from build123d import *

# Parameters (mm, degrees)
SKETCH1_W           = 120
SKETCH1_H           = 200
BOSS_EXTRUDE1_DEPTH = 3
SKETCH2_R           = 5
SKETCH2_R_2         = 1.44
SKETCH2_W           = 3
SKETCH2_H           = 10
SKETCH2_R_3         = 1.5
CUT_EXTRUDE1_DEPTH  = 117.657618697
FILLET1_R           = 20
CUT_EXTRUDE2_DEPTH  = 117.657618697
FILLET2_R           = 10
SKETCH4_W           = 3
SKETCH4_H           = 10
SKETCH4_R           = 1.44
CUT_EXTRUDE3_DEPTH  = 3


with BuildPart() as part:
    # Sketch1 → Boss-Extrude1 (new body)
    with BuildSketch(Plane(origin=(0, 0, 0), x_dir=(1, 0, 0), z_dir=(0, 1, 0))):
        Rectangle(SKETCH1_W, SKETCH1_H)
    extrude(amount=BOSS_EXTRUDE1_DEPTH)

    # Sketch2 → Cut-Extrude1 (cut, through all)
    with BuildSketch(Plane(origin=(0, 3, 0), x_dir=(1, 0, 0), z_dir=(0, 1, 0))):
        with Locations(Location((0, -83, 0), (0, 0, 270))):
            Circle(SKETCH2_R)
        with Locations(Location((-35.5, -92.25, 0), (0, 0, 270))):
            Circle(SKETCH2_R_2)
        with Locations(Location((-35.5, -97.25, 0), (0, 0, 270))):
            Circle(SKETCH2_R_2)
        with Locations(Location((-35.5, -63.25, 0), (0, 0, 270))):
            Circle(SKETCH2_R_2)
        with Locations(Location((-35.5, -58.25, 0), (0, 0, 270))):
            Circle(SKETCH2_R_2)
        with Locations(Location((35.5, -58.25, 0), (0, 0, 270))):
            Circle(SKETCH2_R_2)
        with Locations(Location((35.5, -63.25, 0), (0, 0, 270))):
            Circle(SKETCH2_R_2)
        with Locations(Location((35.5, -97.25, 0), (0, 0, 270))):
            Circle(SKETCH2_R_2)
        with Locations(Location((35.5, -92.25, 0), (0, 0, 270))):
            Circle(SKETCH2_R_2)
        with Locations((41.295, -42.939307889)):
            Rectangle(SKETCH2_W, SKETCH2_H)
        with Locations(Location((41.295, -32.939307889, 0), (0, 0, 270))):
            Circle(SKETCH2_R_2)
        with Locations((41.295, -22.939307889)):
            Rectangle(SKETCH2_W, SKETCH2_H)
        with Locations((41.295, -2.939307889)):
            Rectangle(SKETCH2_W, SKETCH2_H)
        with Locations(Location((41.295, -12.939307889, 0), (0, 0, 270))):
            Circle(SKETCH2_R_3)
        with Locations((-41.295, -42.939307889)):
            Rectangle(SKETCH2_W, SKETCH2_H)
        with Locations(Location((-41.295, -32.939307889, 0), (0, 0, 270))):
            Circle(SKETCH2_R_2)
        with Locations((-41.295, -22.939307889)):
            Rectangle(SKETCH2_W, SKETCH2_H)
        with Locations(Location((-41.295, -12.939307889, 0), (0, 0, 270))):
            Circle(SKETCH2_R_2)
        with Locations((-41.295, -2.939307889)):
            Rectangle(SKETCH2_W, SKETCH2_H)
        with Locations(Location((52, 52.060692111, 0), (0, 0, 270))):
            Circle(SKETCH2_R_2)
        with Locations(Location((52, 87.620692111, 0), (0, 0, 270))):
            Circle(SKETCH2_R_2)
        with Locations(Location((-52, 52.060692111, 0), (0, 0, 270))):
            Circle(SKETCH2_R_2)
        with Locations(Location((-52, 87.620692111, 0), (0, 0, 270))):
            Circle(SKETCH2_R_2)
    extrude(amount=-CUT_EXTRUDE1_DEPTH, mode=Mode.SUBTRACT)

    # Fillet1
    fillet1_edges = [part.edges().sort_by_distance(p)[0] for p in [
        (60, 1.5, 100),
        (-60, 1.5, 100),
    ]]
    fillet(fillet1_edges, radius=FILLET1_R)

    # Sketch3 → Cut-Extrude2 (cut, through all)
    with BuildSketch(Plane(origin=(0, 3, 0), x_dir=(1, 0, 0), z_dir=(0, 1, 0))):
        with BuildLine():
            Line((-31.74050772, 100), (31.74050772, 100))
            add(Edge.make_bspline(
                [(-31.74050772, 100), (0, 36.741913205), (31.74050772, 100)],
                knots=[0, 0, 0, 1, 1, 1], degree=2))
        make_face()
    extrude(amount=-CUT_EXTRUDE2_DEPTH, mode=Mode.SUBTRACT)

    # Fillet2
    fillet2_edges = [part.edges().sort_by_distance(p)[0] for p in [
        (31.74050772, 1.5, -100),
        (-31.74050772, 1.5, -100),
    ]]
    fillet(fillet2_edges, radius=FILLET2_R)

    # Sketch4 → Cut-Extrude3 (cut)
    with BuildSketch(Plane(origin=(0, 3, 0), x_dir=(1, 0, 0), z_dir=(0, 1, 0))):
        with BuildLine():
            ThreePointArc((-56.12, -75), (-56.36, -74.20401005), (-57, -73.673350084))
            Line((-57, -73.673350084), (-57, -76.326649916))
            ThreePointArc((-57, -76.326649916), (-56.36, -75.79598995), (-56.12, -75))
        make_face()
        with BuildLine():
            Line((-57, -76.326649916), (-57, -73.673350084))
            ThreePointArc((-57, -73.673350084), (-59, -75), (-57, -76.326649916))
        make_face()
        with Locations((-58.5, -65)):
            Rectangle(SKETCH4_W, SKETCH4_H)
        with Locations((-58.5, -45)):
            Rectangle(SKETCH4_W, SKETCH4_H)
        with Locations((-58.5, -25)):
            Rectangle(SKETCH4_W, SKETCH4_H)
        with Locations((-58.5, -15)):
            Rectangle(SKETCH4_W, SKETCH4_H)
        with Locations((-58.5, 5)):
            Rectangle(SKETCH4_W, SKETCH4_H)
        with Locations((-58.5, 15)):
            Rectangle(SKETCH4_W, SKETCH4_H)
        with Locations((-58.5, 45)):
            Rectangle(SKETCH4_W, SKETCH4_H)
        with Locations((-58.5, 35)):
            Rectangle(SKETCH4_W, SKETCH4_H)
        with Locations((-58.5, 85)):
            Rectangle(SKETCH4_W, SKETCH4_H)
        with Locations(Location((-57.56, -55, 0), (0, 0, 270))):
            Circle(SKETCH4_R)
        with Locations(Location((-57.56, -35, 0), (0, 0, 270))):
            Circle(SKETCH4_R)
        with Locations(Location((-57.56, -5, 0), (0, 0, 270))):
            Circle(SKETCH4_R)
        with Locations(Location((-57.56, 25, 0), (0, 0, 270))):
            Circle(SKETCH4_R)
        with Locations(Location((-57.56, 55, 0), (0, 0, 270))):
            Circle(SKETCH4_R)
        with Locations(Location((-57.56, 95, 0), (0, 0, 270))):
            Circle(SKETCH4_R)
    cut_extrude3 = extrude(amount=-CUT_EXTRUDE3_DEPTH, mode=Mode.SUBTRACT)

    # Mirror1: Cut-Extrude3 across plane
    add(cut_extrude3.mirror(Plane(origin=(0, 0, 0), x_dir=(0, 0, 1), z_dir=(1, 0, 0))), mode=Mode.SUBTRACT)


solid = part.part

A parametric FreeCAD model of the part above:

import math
import FreeCAD as App
import Part
import Sketcher
Q = App.Units.Quantity


def edges_at(feature, points):
    """Names of the edges that pass closest to the given points."""
    edges = feature.Shape.Edges
    near = lambda p: min(range(len(edges)), key=lambda i: edges[i].distToShape(Part.Vertex(*p))[0])
    return sorted({f"Edge{near(p) + 1}" for p in points})

doc = App.newDocument("Part")
body = doc.addObject("PartDesign::Body", "Body")

sketch1 = doc.addObject("Sketcher::SketchObject", "Sketch")
body.addObject(sketch1)
sketch1.AttachmentSupport = (doc.XZ_Plane, [""])
sketch1.MapMode = "FlatFace"
sketch1.addGeometry([
    Part.LineSegment(App.Vector(-60, -100, 0), App.Vector(-60, 100, 0)),
    Part.LineSegment(App.Vector(-60, 100, 0), App.Vector(60, 100, 0)),
    Part.LineSegment(App.Vector(60, 100, 0), App.Vector(60, -100, 0)),
    Part.LineSegment(App.Vector(60, -100, 0), App.Vector(-60, -100, 0)),
], False)
sketch1.addConstraint([
    Sketcher.Constraint("Coincident", 0, 2, 1, 1),
    Sketcher.Constraint("Coincident", 1, 2, 2, 1),
    Sketcher.Constraint("Coincident", 2, 2, 3, 1),
    Sketcher.Constraint("Coincident", 3, 2, 0, 1),
    Sketcher.Constraint("Vertical", 0),
    Sketcher.Constraint("Horizontal", 1),
    Sketcher.Constraint("Vertical", 2),
    Sketcher.Constraint("Horizontal", 3),
    Sketcher.Constraint("Symmetric", 0, 2, 2, 2, -1, 1),
    Sketcher.Constraint("DistanceX", 1, 1, 1, 2, Q("120 mm")),
    Sketcher.Constraint("DistanceY", 0, 1, 0, 2, Q("200 mm")),
])
pad1 = doc.addObject("PartDesign::Pad", "Pad")
body.addObject(pad1)
pad1.Profile = sketch1
pad1.Length = 3
pad1.Reversed = True

sketch2 = doc.addObject("Sketcher::SketchObject", "Sketch001")
body.addObject(sketch2)
sketch2.AttachmentSupport = (doc.XZ_Plane, [""])
sketch2.MapMode = "FlatFace"
sketch2.AttachmentOffset = App.Placement(App.Vector(0, 0, -3), App.Rotation())
sketch2.addGeometry([
    Part.Circle(App.Vector(0, 83, 0), App.Vector(0, 0, 1), 5),
    Part.Circle(App.Vector(-35.5, 92.2, 0), App.Vector(0, 0, 1), 1.4),
    Part.Circle(App.Vector(-35.5, 97.2, 0), App.Vector(0, 0, 1), 1.4),
    Part.Circle(App.Vector(-35.5, 63.2, 0), App.Vector(0, 0, 1), 1.4),
    Part.Circle(App.Vector(-35.5, 58.2, 0), App.Vector(0, 0, 1), 1.4),
    Part.Circle(App.Vector(35.5, 58.2, 0), App.Vector(0, 0, 1), 1.4),
    Part.Circle(App.Vector(35.5, 63.2, 0), App.Vector(0, 0, 1), 1.4),
    Part.Circle(App.Vector(35.5, 97.2, 0), App.Vector(0, 0, 1), 1.4),
    Part.Circle(App.Vector(35.5, 92.2, 0), App.Vector(0, 0, 1), 1.4),
    Part.LineSegment(App.Vector(39.8, 37.9, 0), App.Vector(39.8, 47.9, 0)),
    Part.LineSegment(App.Vector(39.8, 47.9, 0), App.Vector(42.8, 47.9, 0)),
    Part.LineSegment(App.Vector(42.8, 47.9, 0), App.Vector(42.8, 37.9, 0)),
    Part.LineSegment(App.Vector(42.8, 37.9, 0), App.Vector(39.8, 37.9, 0)),
    Part.Circle(App.Vector(41.3, 32.9, 0), App.Vector(0, 0, 1), 1.4),
    Part.LineSegment(App.Vector(39.8, 17.9, 0), App.Vector(39.8, 27.9, 0)),
    Part.LineSegment(App.Vector(39.8, 27.9, 0), App.Vector(42.8, 27.9, 0)),
    Part.LineSegment(App.Vector(42.8, 27.9, 0), App.Vector(42.8, 17.9, 0)),
    Part.LineSegment(App.Vector(42.8, 17.9, 0), App.Vector(39.8, 17.9, 0)),
    Part.LineSegment(App.Vector(39.8, -2.1, 0), App.Vector(39.8, 7.9, 0)),
    Part.LineSegment(App.Vector(39.8, 7.9, 0), App.Vector(42.8, 7.9, 0)),
    Part.LineSegment(App.Vector(42.8, 7.9, 0), App.Vector(42.8, -2.1, 0)),
    Part.LineSegment(App.Vector(42.8, -2.1, 0), App.Vector(39.8, -2.1, 0)),
    Part.Circle(App.Vector(41.3, 12.9, 0), App.Vector(0, 0, 1), 1.5),
    Part.LineSegment(App.Vector(-42.8, 37.9, 0), App.Vector(-42.8, 47.9, 0)),
    Part.LineSegment(App.Vector(-42.8, 47.9, 0), App.Vector(-39.8, 47.9, 0)),
    Part.LineSegment(App.Vector(-39.8, 47.9, 0), App.Vector(-39.8, 37.9, 0)),
    Part.LineSegment(App.Vector(-39.8, 37.9, 0), App.Vector(-42.8, 37.9, 0)),
    Part.Circle(App.Vector(-41.3, 32.9, 0), App.Vector(0, 0, 1), 1.4),
    Part.LineSegment(App.Vector(-42.8, 17.9, 0), App.Vector(-42.8, 27.9, 0)),
    Part.LineSegment(App.Vector(-42.8, 27.9, 0), App.Vector(-39.8, 27.9, 0)),
    Part.LineSegment(App.Vector(-39.8, 27.9, 0), App.Vector(-39.8, 17.9, 0)),
    Part.LineSegment(App.Vector(-39.8, 17.9, 0), App.Vector(-42.8, 17.9, 0)),
    Part.Circle(App.Vector(-41.3, 12.9, 0), App.Vector(0, 0, 1), 1.4),
    Part.LineSegment(App.Vector(-42.8, -2.1, 0), App.Vector(-42.8, 7.9, 0)),
    Part.LineSegment(App.Vector(-42.8, 7.9, 0), App.Vector(-39.8, 7.9, 0)),
    Part.LineSegment(App.Vector(-39.8, 7.9, 0), App.Vector(-39.8, -2.1, 0)),
    Part.LineSegment(App.Vector(-39.8, -2.1, 0), App.Vector(-42.8, -2.1, 0)),
    Part.Circle(App.Vector(52, -52.1, 0), App.Vector(0, 0, 1), 1.4),
    Part.Circle(App.Vector(52, -87.6, 0), App.Vector(0, 0, 1), 1.4),
    Part.Circle(App.Vector(-52, -52.1, 0), App.Vector(0, 0, 1), 1.4),
    Part.Circle(App.Vector(-52, -87.6, 0), App.Vector(0, 0, 1), 1.4),
], False)
sketch2.addConstraint([
    Sketcher.Constraint("Coincident", 9, 2, 10, 1),
    Sketcher.Constraint("Coincident", 10, 2, 11, 1),
    Sketcher.Constraint("Coincident", 11, 2, 12, 1),
    Sketcher.Constraint("Coincident", 12, 2, 9, 1),
    Sketcher.Constraint("Coincident", 14, 2, 15, 1),
    Sketcher.Constraint("Coincident", 15, 2, 16, 1),
    Sketcher.Constraint("Coincident", 16, 2, 17, 1),
    Sketcher.Constraint("Coincident", 17, 2, 14, 1),
    Sketcher.Constraint("Coincident", 18, 2, 19, 1),
    Sketcher.Constraint("Coincident", 19, 2, 20, 1),
    Sketcher.Constraint("Coincident", 20, 2, 21, 1),
    Sketcher.Constraint("Coincident", 21, 2, 18, 1),
    Sketcher.Constraint("Coincident", 23, 2, 24, 1),
    Sketcher.Constraint("Coincident", 24, 2, 25, 1),
    Sketcher.Constraint("Coincident", 25, 2, 26, 1),
    Sketcher.Constraint("Coincident", 26, 2, 23, 1),
    Sketcher.Constraint("Coincident", 28, 2, 29, 1),
    Sketcher.Constraint("Coincident", 29, 2, 30, 1),
    Sketcher.Constraint("Coincident", 30, 2, 31, 1),
    Sketcher.Constraint("Coincident", 31, 2, 28, 1),
    Sketcher.Constraint("Coincident", 33, 2, 34, 1),
    Sketcher.Constraint("Coincident", 34, 2, 35, 1),
    Sketcher.Constraint("Coincident", 35, 2, 36, 1),
    Sketcher.Constraint("Coincident", 36, 2, 33, 1),
    Sketcher.Constraint("Vertical", 9),
    Sketcher.Constraint("Horizontal", 10),
    Sketcher.Constraint("Vertical", 11),
    Sketcher.Constraint("Horizontal", 12),
    Sketcher.Constraint("Vertical", 14),
    Sketcher.Constraint("Horizontal", 15),
    Sketcher.Constraint("Vertical", 16),
    Sketcher.Constraint("Horizontal", 17),
    Sketcher.Constraint("Vertical", 18),
    Sketcher.Constraint("Horizontal", 19),
    Sketcher.Constraint("Vertical", 20),
    Sketcher.Constraint("Horizontal", 21),
    Sketcher.Constraint("Vertical", 23),
    Sketcher.Constraint("Horizontal", 24),
    Sketcher.Constraint("Vertical", 25),
    Sketcher.Constraint("Horizontal", 26),
    Sketcher.Constraint("Vertical", 28),
    Sketcher.Constraint("Horizontal", 29),
    Sketcher.Constraint("Vertical", 30),
    Sketcher.Constraint("Horizontal", 31),
    Sketcher.Constraint("Vertical", 33),
    Sketcher.Constraint("Horizontal", 34),
    Sketcher.Constraint("Vertical", 35),
    Sketcher.Constraint("Horizontal", 36),
    Sketcher.Constraint("Equal", 1, 2),
    Sketcher.Constraint("Equal", 2, 3),
    Sketcher.Constraint("Equal", 3, 4),
    Sketcher.Constraint("Equal", 4, 5),
    Sketcher.Constraint("Equal", 5, 6),
    Sketcher.Constraint("Equal", 6, 7),
    Sketcher.Constraint("Equal", 7, 8),
    Sketcher.Constraint("Equal", 8, 13),
    Sketcher.Constraint("Equal", 13, 27),
    Sketcher.Constraint("Equal", 27, 32),
    Sketcher.Constraint("Equal", 32, 37),
    Sketcher.Constraint("Equal", 37, 38),
    Sketcher.Constraint("Equal", 38, 39),
    Sketcher.Constraint("Equal", 39, 40),
    Sketcher.Constraint("Symmetric", 4, 3, 5, 3, -2),
    Sketcher.Constraint("Symmetric", 3, 3, 6, 3, -2),
    Sketcher.Constraint("Symmetric", 2, 3, 7, 3, -2),
    Sketcher.Constraint("Symmetric", 1, 3, 8, 3, -2),
    Sketcher.Constraint("Symmetric", 13, 3, 27, 3, -2),
    Sketcher.Constraint("Symmetric", 22, 3, 32, 3, -2),
    Sketcher.Constraint("Symmetric", 37, 3, 39, 3, -2),
    Sketcher.Constraint("Symmetric", 38, 3, 40, 3, -2),
    Sketcher.Constraint("Symmetric", 10, 2, 23, 2, -2),
    Sketcher.Constraint("Symmetric", 12, 2, 25, 2, -2),
    Sketcher.Constraint("Symmetric", 15, 2, 28, 2, -2),
    Sketcher.Constraint("Symmetric", 17, 2, 30, 2, -2),
    Sketcher.Constraint("Symmetric", 19, 2, 33, 2, -2),
    Sketcher.Constraint("Symmetric", 21, 2, 35, 2, -2),
    Sketcher.Constraint("PointOnObject", 0, 3, -2),
    Sketcher.Constraint("Vertical", 1, 3, 2, 3),
    Sketcher.Constraint("Vertical", 2, 3, 3, 3),
    Sketcher.Constraint("Vertical", 3, 3, 4, 3),
    Sketcher.Constraint("Vertical", 13, 3, 22, 3),
    Sketcher.Constraint("Vertical", 37, 3, 38, 3),
    Sketcher.Constraint("Vertical", 12, 2, 14, 2),
    Sketcher.Constraint("Vertical", 11, 2, 15, 2),
    Sketcher.Constraint("Vertical", 17, 2, 18, 2),
    Sketcher.Constraint("Vertical", 16, 2, 19, 2),
    Sketcher.Constraint("Equal", 11, 14),
    Sketcher.Constraint("Equal", 16, 18),
    Sketcher.Constraint("Diameter", 0, Q("10 mm")),
    Sketcher.Constraint("Diameter", 22, Q("3 mm")),
    Sketcher.Constraint("Diameter", 1, Q("2.88 mm")),
    Sketcher.Constraint("DistanceX", 10, 1, 10, 2, Q("3 mm")),
    Sketcher.Constraint("DistanceY", 9, 1, 9, 2, Q("10 mm")),
    Sketcher.Constraint("DistanceY", -1, 1, 0, 3, Q("83 mm")),
    Sketcher.Constraint("DistanceX", -1, 1, 37, 3, Q("52 mm")),
    Sketcher.Constraint("DistanceY", 1, 3, 2, 3, Q("5 mm")),
    Sketcher.Constraint("DistanceY", 3, 3, 1, 3, Q("29 mm")),
    Sketcher.Constraint("DistanceY", 4, 3, 3, 3, Q("5 mm")),
    Sketcher.Constraint("DistanceX", 4, 3, 5, 3, Q("71 mm")),
    Sketcher.Constraint("DistanceY", 22, 3, 13, 3, Q("20 mm")),
    Sketcher.Constraint("DistanceY", 37, 3, 22, 3, Q("65 mm")),
    Sketcher.Constraint("DistanceY", 13, 3, 9, 2, Q("15 mm")),
    Sketcher.Constraint("DistanceY", 14, 2, 13, 3, Q("5 mm")),
    Sketcher.Constraint("DistanceY", 18, 2, 22, 3, Q("5 mm")),
    Sketcher.Constraint("DistanceX", 9, 2, 13, 3, Q("1.5 mm")),
    Sketcher.Constraint("DistanceY", -1, 1, 1, 3, Q("92.25 mm")),
    Sketcher.Constraint("DistanceY", 38, 3, 37, 3, Q("35.56 mm")),
    Sketcher.Constraint("DistanceX", -1, 1, 13, 3, Q("41.295 mm")),
    Sketcher.Constraint("DistanceY", -1, 1, 13, 3, Q("32.939308 mm")),
])
pocket1 = doc.addObject("PartDesign::Pocket", "Pocket")
body.addObject(pocket1)
pocket1.Profile = sketch2
pocket1.Type = "ThroughAll"
pocket1.Reversed = True
doc.recompute()

fillet = doc.addObject("PartDesign::Fillet", "Fillet")
body.addObject(fillet)
fillet.Base = (pocket1, edges_at(pocket1, [(60, 1.5, 100), (-60, 1.5, 100)]))
fillet.Radius = 20

sketch3 = doc.addObject("Sketcher::SketchObject", "Sketch002")
body.addObject(sketch3)
sketch3.AttachmentSupport = (doc.XZ_Plane, [""])
sketch3.MapMode = "FlatFace"
sketch3.AttachmentOffset = App.Placement(App.Vector(0, 0, -3), App.Rotation())
sketch3.addGeometry([
    Part.LineSegment(App.Vector(31.740508, -100, 0), App.Vector(-31.740508, -100, 0)),
    Part.BSplineCurve([App.Vector(-31.740508, -100, 0), App.Vector(0, -36.741913, 0), App.Vector(31.740508, -100, 0)], [3, 3], [0, 1], False, 2, [1, 1, 1], False),
], False)
sketch3.addConstraint([
    Sketcher.Constraint("Block", 1),
    Sketcher.Constraint("Coincident", 0, 1, 1, 2),
    Sketcher.Constraint("Coincident", 1, 1, 0, 2),
])
pocket2 = doc.addObject("PartDesign::Pocket", "Pocket001")
body.addObject(pocket2)
pocket2.Profile = sketch3
pocket2.Type = "ThroughAll"
pocket2.Reversed = True
doc.recompute()

fillet2 = doc.addObject("PartDesign::Fillet", "Fillet001")
body.addObject(fillet2)
fillet2.Base = (pocket2, edges_at(pocket2, [(31.741, 1.5, -100), (-31.741, 1.5, -100)]))
fillet2.Radius = 10

sketch4 = doc.addObject("Sketcher::SketchObject", "Sketch003")
body.addObject(sketch4)
sketch4.AttachmentSupport = (doc.XZ_Plane, [""])
sketch4.MapMode = "FlatFace"
sketch4.AttachmentOffset = App.Placement(App.Vector(0, 0, -3), App.Rotation())
sketch4.addGeometry([
    Part.ArcOfCircle(Part.Circle(App.Vector(-57.6, 75, 0), App.Vector(0, 0, 1), 1.4), math.radians(-67), math.radians(0)),
    Part.ArcOfCircle(Part.Circle(App.Vector(-57.6, 75, 0), App.Vector(0, 0, 1), 1.4), math.radians(67), math.radians(293)),
    Part.ArcOfCircle(Part.Circle(App.Vector(-57.6, 75, 0), App.Vector(0, 0, 1), 1.4), math.radians(0), math.radians(67)),
    Part.LineSegment(App.Vector(-60, 60, 0), App.Vector(-60, 70, 0)),
    Part.LineSegment(App.Vector(-60, 70, 0), App.Vector(-57, 70, 0)),
    Part.LineSegment(App.Vector(-57, 70, 0), App.Vector(-57, 60, 0)),
    Part.LineSegment(App.Vector(-57, 60, 0), App.Vector(-60, 60, 0)),
    Part.LineSegment(App.Vector(-60, 40, 0), App.Vector(-60, 50, 0)),
    Part.LineSegment(App.Vector(-60, 50, 0), App.Vector(-57, 50, 0)),
    Part.LineSegment(App.Vector(-57, 50, 0), App.Vector(-57, 40, 0)),
    Part.LineSegment(App.Vector(-57, 40, 0), App.Vector(-60, 40, 0)),
    Part.LineSegment(App.Vector(-60, 30, 0), App.Vector(-57, 30, 0)),
    Part.LineSegment(App.Vector(-57, 30, 0), App.Vector(-57, 10, 0)),
    Part.LineSegment(App.Vector(-57, 10, 0), App.Vector(-60, 10, 0)),
    Part.LineSegment(App.Vector(-60, 10, 0), App.Vector(-60, 30, 0)),
    Part.LineSegment(App.Vector(-60, 0, 0), App.Vector(-57, 0, 0)),
    Part.LineSegment(App.Vector(-57, 0, 0), App.Vector(-57, -20, 0)),
    Part.LineSegment(App.Vector(-57, -20, 0), App.Vector(-60, -20, 0)),
    Part.LineSegment(App.Vector(-60, -20, 0), App.Vector(-60, 0, 0)),
    Part.LineSegment(App.Vector(-60, -50, 0), App.Vector(-60, -30, 0)),
    Part.LineSegment(App.Vector(-60, -30, 0), App.Vector(-57, -30, 0)),
    Part.LineSegment(App.Vector(-57, -30, 0), App.Vector(-57, -50, 0)),
    Part.LineSegment(App.Vector(-57, -50, 0), App.Vector(-60, -50, 0)),
    Part.LineSegment(App.Vector(-60, -90, 0), App.Vector(-60, -80, 0)),
    Part.LineSegment(App.Vector(-60, -80, 0), App.Vector(-57, -80, 0)),
    Part.LineSegment(App.Vector(-57, -80, 0), App.Vector(-57, -90, 0)),
    Part.LineSegment(App.Vector(-57, -90, 0), App.Vector(-60, -90, 0)),
    Part.Circle(App.Vector(-57.6, 55, 0), App.Vector(0, 0, 1), 1.4),
    Part.Circle(App.Vector(-57.6, 35, 0), App.Vector(0, 0, 1), 1.4),
    Part.Circle(App.Vector(-57.6, 5, 0), App.Vector(0, 0, 1), 1.4),
    Part.Circle(App.Vector(-57.6, -25, 0), App.Vector(0, 0, 1), 1.4),
    Part.Circle(App.Vector(-57.6, -55, 0), App.Vector(0, 0, 1), 1.4),
    Part.Circle(App.Vector(-57.6, -95, 0), App.Vector(0, 0, 1), 1.4),
], False)
sketch4.addConstraint([
    Sketcher.Constraint("Tangent", 0, 1, 1, 2),
    Sketcher.Constraint("Tangent", 1, 1, 2, 2),
    Sketcher.Constraint("Tangent", 2, 1, 0, 2),
    Sketcher.Constraint("Coincident", 3, 2, 4, 1),
    Sketcher.Constraint("Coincident", 4, 2, 5, 1),
    Sketcher.Constraint("Coincident", 5, 2, 6, 1),
    Sketcher.Constraint("Coincident", 6, 2, 3, 1),
    Sketcher.Constraint("Coincident", 7, 2, 8, 1),
    Sketcher.Constraint("Coincident", 8, 2, 9, 1),
    Sketcher.Constraint("Coincident", 9, 2, 10, 1),
    Sketcher.Constraint("Coincident", 10, 2, 7, 1),
    Sketcher.Constraint("Coincident", 11, 2, 12, 1),
    Sketcher.Constraint("Coincident", 12, 2, 13, 1),
    Sketcher.Constraint("Coincident", 13, 2, 14, 1),
    Sketcher.Constraint("Coincident", 14, 2, 11, 1),
    Sketcher.Constraint("Coincident", 15, 2, 16, 1),
    Sketcher.Constraint("Coincident", 16, 2, 17, 1),
    Sketcher.Constraint("Coincident", 17, 2, 18, 1),
    Sketcher.Constraint("Coincident", 18, 2, 15, 1),
    Sketcher.Constraint("Coincident", 19, 2, 20, 1),
    Sketcher.Constraint("Coincident", 20, 2, 21, 1),
    Sketcher.Constraint("Coincident", 21, 2, 22, 1),
    Sketcher.Constraint("Coincident", 22, 2, 19, 1),
    Sketcher.Constraint("Coincident", 23, 2, 24, 1),
    Sketcher.Constraint("Coincident", 24, 2, 25, 1),
    Sketcher.Constraint("Coincident", 25, 2, 26, 1),
    Sketcher.Constraint("Coincident", 26, 2, 23, 1),
    Sketcher.Constraint("Vertical", 3),
    Sketcher.Constraint("Horizontal", 4),
    Sketcher.Constraint("Vertical", 5),
    Sketcher.Constraint("Horizontal", 6),
    Sketcher.Constraint("Vertical", 7),
    Sketcher.Constraint("Horizontal", 8),
    Sketcher.Constraint("Vertical", 9),
    Sketcher.Constraint("Horizontal", 10),
    Sketcher.Constraint("Horizontal", 11),
    Sketcher.Constraint("Vertical", 12),
    Sketcher.Constraint("Horizontal", 13),
    Sketcher.Constraint("Vertical", 14),
    Sketcher.Constraint("Horizontal", 15),
    Sketcher.Constraint("Vertical", 16),
    Sketcher.Constraint("Horizontal", 17),
    Sketcher.Constraint("Vertical", 18),
    Sketcher.Constraint("Vertical", 19),
    Sketcher.Constraint("Horizontal", 20),
    Sketcher.Constraint("Vertical", 21),
    Sketcher.Constraint("Horizontal", 22),
    Sketcher.Constraint("Vertical", 23),
    Sketcher.Constraint("Horizontal", 24),
    Sketcher.Constraint("Vertical", 25),
    Sketcher.Constraint("Horizontal", 26),
    Sketcher.Constraint("Equal", 2, 27),
    Sketcher.Constraint("Equal", 27, 28),
    Sketcher.Constraint("Equal", 28, 29),
    Sketcher.Constraint("Equal", 29, 30),
    Sketcher.Constraint("Equal", 30, 31),
    Sketcher.Constraint("Equal", 31, 32),
    Sketcher.Constraint("Symmetric", 27, 3, 31, 3, -1),
    Sketcher.Constraint("Symmetric", 14, 2, 19, 2, -1),
    Sketcher.Constraint("Symmetric", 8, 2, 21, 2, -1),
    Sketcher.Constraint("PointOnObject", 15, 2, -1),
    Sketcher.Constraint("Horizontal", 1, 3, 2, 1),
    Sketcher.Constraint("Vertical", 2, 3, 27, 3),
    Sketcher.Constraint("Vertical", 27, 3, 28, 3),
    Sketcher.Constraint("Vertical", 28, 3, 29, 3),
    Sketcher.Constraint("Vertical", 29, 3, 30, 3),
    Sketcher.Constraint("Vertical", 31, 3, 32, 3),
    Sketcher.Constraint("Vertical", 0, 1, 1, 1),
    Sketcher.Constraint("Vertical", 1, 1, 4, 2),
    Sketcher.Constraint("Vertical", 6, 2, 7, 2),
    Sketcher.Constraint("Vertical", 5, 2, 8, 2),
    Sketcher.Constraint("Vertical", 9, 2, 11, 2),
    Sketcher.Constraint("Vertical", 10, 2, 13, 2),
    Sketcher.Constraint("Vertical", 12, 2, 15, 2),
    Sketcher.Constraint("Vertical", 14, 2, 17, 2),
    Sketcher.Constraint("Vertical", 22, 2, 23, 2),
    Sketcher.Constraint("Vertical", 21, 2, 24, 2),
    Sketcher.Constraint("Equal", 5, 7),
    Sketcher.Constraint("Equal", 14, 16),
    Sketcher.Constraint("Equal", 18, 19),
    Sketcher.Constraint("Equal", 9, 23),
    Sketcher.Constraint("Diameter", 27, Q("2.88 mm")),
    Sketcher.Constraint("DistanceX", 4, 1, 4, 2, Q("3 mm")),
    Sketcher.Constraint("DistanceY", 3, 1, 3, 2, Q("10 mm")),
    Sketcher.Constraint("DistanceY", 12, 2, 12, 1, Q("20 mm")),
    Sketcher.Constraint("DistanceY", -1, 1, 0, 3, Q("75 mm")),
    Sketcher.Constraint("DistanceY", -1, 1, 27, 3, Q("55 mm")),
    Sketcher.Constraint("DistanceY", -1, 1, 28, 3, Q("35 mm")),
    Sketcher.Constraint("DistanceY", -1, 1, 29, 3, Q("5 mm")),
    Sketcher.Constraint("DistanceY", 30, 3, -1, 1, Q("25 mm")),
    Sketcher.Constraint("DistanceY", 32, 3, -1, 1, Q("95 mm")),
    Sketcher.Constraint("DistanceX", 0, 1, -1, 1, Q("57 mm")),
    Sketcher.Constraint("DistanceY", -1, 1, 3, 2, Q("70 mm")),
    Sketcher.Constraint("DistanceY", -1, 1, 7, 2, Q("50 mm")),
    Sketcher.Constraint("DistanceY", 23, 2, -1, 1, Q("80 mm")),
    Sketcher.Constraint("DistanceX", 0, 3, -1, 1, Q("57.56 mm")),
])
pocket3 = doc.addObject("PartDesign::Pocket", "Pocket002")
body.addObject(pocket3)
pocket3.Profile = sketch4
pocket3.Length = 3
pocket3.Reversed = True
doc.recompute()

mirrored = doc.addObject("PartDesign::Mirrored", "Mirrored")
body.addObject(mirrored)
mirrored.Originals = [pocket3]
mirrored.MirrorPlane = (doc.YZ_Plane, [""])
body.Tip = mirrored

doc.recompute()
